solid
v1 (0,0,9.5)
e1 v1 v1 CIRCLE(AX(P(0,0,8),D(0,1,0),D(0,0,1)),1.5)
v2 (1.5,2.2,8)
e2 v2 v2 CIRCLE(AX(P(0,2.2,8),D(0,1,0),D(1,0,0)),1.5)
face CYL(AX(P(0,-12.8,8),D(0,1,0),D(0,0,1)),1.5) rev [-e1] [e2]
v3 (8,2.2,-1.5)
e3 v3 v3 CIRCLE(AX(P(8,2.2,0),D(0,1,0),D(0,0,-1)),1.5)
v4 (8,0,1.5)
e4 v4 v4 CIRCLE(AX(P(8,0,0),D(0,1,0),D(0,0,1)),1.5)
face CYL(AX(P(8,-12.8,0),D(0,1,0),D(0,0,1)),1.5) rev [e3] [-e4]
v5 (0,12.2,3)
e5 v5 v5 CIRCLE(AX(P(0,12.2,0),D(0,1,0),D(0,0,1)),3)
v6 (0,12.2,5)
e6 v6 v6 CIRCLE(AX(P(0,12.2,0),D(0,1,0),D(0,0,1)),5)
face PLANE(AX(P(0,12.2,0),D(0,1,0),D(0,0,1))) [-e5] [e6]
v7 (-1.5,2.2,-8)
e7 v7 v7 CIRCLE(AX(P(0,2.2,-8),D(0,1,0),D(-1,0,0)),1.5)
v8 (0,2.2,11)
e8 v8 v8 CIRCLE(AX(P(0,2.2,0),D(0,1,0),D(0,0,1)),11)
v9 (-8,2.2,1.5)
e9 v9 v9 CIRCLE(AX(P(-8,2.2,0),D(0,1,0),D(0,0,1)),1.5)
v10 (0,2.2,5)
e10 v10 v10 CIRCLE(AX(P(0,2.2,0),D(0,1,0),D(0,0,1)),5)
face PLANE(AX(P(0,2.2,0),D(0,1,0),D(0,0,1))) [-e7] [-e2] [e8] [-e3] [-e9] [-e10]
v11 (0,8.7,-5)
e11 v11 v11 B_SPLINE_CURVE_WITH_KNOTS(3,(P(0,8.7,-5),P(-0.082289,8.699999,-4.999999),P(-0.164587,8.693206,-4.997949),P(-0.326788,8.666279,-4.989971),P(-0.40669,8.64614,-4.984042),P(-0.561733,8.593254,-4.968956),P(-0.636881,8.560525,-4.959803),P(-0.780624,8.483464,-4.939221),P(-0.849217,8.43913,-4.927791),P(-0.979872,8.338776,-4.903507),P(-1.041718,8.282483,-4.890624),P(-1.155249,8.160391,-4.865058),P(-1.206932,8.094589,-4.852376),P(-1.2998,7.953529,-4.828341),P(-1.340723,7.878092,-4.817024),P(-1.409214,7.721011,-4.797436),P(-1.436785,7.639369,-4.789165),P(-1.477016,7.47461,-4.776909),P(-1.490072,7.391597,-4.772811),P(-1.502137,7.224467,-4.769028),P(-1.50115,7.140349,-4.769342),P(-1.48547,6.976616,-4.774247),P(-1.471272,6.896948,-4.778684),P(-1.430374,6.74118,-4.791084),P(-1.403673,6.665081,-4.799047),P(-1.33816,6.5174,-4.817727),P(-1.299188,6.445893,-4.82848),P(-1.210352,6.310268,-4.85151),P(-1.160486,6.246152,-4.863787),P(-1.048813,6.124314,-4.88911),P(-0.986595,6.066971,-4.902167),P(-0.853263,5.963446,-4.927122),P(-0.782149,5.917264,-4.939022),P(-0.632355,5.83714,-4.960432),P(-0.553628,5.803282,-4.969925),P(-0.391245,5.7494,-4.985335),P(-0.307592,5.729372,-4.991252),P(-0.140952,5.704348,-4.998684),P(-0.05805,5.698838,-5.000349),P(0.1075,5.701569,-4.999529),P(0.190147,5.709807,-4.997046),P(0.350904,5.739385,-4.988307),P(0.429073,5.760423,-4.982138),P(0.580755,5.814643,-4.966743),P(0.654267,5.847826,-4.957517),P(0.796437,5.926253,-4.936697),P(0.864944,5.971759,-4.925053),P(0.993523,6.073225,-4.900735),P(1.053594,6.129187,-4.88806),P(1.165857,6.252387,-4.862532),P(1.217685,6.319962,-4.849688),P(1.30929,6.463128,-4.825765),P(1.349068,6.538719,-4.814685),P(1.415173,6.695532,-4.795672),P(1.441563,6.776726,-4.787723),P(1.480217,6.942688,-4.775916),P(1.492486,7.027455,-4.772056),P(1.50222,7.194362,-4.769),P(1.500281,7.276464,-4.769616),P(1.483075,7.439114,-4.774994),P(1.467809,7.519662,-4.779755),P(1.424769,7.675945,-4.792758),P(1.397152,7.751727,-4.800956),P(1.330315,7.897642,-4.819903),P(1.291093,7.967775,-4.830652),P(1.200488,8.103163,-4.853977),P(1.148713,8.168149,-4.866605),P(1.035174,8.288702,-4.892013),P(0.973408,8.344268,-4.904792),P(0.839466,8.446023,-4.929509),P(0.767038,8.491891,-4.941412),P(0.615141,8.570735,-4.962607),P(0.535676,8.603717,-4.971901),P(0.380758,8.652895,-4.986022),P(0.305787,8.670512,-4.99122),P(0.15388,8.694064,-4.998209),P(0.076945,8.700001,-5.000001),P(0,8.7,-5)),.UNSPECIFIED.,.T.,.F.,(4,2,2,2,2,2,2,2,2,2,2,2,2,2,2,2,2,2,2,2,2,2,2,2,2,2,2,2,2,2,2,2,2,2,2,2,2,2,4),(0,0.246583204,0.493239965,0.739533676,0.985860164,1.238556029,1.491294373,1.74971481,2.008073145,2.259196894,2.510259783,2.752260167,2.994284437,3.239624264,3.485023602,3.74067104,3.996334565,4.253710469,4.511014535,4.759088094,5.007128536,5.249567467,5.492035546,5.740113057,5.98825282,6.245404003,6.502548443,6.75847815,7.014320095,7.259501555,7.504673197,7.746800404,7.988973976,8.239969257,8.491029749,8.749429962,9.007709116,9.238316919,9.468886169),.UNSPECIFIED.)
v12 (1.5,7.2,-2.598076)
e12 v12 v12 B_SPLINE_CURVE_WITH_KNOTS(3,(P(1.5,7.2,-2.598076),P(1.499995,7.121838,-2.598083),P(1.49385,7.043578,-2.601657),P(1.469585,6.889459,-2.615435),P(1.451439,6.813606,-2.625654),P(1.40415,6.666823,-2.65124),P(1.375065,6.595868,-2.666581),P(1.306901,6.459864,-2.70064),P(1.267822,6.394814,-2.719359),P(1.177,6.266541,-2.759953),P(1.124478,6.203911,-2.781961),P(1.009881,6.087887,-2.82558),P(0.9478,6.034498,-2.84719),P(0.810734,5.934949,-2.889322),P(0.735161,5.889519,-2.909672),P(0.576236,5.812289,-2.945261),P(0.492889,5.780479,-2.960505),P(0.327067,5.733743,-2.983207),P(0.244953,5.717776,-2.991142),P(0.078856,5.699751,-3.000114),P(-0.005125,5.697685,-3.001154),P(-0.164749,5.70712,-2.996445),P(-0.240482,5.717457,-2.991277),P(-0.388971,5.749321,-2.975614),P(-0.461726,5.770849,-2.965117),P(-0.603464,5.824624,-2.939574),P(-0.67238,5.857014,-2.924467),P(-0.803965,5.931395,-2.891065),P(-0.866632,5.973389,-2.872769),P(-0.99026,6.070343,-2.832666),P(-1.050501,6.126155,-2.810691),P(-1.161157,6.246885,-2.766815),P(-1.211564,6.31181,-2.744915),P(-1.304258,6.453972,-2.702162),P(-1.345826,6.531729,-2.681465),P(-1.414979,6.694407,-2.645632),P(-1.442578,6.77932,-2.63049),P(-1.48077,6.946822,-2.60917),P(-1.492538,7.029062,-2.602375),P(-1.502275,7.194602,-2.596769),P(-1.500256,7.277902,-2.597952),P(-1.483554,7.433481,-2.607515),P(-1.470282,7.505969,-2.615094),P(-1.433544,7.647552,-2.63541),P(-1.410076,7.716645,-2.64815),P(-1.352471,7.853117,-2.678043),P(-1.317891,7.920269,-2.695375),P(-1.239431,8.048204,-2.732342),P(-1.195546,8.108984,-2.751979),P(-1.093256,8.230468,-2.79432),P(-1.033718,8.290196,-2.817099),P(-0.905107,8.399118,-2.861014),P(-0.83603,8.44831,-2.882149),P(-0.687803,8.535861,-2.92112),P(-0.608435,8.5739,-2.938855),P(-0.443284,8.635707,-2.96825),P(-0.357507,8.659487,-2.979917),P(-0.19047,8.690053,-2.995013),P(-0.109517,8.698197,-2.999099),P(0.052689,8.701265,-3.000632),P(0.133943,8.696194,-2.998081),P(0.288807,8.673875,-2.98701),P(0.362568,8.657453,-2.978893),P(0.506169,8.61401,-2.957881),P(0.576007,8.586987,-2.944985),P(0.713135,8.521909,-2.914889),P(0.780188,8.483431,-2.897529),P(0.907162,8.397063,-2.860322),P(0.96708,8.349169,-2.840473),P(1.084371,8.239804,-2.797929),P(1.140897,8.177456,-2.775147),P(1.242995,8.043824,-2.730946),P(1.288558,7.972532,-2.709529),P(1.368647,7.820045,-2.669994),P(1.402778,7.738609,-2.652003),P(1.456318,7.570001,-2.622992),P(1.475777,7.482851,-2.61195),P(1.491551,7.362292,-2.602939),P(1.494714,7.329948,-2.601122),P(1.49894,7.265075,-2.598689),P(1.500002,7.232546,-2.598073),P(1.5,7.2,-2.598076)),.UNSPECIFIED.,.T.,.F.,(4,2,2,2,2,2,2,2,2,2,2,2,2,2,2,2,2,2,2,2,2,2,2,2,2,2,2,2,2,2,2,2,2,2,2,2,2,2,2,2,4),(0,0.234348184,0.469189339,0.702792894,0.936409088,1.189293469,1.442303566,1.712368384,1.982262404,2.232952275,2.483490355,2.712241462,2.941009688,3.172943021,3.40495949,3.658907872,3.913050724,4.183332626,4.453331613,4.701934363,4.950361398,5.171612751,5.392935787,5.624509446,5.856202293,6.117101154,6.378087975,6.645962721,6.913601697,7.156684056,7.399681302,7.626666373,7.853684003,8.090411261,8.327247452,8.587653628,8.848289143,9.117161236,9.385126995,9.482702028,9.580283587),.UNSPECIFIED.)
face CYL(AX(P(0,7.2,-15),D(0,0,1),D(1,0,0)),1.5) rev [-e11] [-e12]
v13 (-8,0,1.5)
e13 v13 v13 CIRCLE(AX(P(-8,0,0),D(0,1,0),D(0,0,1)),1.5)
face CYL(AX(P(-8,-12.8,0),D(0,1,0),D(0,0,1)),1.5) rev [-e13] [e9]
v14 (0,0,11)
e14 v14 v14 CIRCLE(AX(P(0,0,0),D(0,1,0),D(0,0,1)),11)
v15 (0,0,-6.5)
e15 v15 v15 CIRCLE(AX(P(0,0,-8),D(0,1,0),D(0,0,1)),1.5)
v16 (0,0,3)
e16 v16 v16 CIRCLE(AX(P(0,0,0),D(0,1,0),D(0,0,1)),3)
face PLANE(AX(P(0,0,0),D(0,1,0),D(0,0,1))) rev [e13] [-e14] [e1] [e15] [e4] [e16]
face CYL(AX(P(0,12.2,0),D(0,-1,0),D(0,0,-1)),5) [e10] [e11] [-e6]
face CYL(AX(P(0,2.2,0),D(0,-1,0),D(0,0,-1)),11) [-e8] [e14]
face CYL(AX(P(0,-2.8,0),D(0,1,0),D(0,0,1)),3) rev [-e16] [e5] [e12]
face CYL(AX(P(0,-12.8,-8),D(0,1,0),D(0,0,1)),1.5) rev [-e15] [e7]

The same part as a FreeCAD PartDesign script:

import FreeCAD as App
import Part
import Sketcher
Q = App.Units.Quantity

doc = App.newDocument("Part")
body = doc.addObject("PartDesign::Body", "Body")

# Sketch on XZ plane
sketch1 = doc.addObject("Sketcher::SketchObject", "Sketch")
body.addObject(sketch1)
sketch1.AttachmentSupport = (doc.XZ_Plane, [""])
sketch1.MapMode = "FlatFace"
sketch1.addGeometry(Part.Circle(App.Vector(0, 0, 0), App.Vector(0, 0, 1), 11), False)
sketch1.addConstraint([
    Sketcher.Constraint("Coincident", 0, 3, -1, 1),
    Sketcher.Constraint("Diameter", 0, Q("22 mm")),
])
pad1 = doc.addObject("PartDesign::Pad", "Pad")
body.addObject(pad1)
pad1.Profile = sketch1
pad1.Length = 2.2
pad1.Reversed = True

# Sketch on XZ plane
sketch2 = doc.addObject("Sketcher::SketchObject", "Sketch001")
body.addObject(sketch2)
sketch2.AttachmentSupport = (doc.XZ_Plane, [""])
sketch2.MapMode = "FlatFace"
sketch2.AttachmentOffset = App.Placement(App.Vector(0, 0, -2.2), App.Rotation())
sketch2.addGeometry(Part.Circle(App.Vector(0, 0, 0), App.Vector(0, 0, 1), 5), False)
sketch2.addConstraint([
    Sketcher.Constraint("Coincident", 0, 3, -1, 1),
    Sketcher.Constraint("Diameter", 0, Q("10 mm")),
])
pad2 = doc.addObject("PartDesign::Pad", "Pad001")
body.addObject(pad2)
pad2.Profile = sketch2
pad2.Length = 10
pad2.Reversed = True

# Sketch on XZ plane
sketch3 = doc.addObject("Sketcher::SketchObject", "Sketch002")
body.addObject(sketch3)
sketch3.AttachmentSupport = (doc.XZ_Plane, [""])
sketch3.MapMode = "FlatFace"
sketch3.AttachmentOffset = App.Placement(App.Vector(0, 0, -12.2), App.Rotation())
sketch3.addGeometry(Part.Circle(App.Vector(0, 0, 0), App.Vector(0, 0, 1), 3), False)
sketch3.addConstraint([
    Sketcher.Constraint("Coincident", 0, 3, -1, 1),
    Sketcher.Constraint("Diameter", 0, Q("6 mm")),
])
pocket1 = doc.addObject("PartDesign::Pocket", "Pocket")
body.addObject(pocket1)
pocket1.Profile = sketch3
pocket1.Length = 15
pocket1.Reversed = True

# Sketch on XY plane
sketch4 = doc.addObject("Sketcher::SketchObject", "Sketch003")
body.addObject(sketch4)
sketch4.AttachmentSupport = (doc.XY_Plane, [""])
sketch4.MapMode = "FlatFace"
sketch4.addGeometry(Part.Circle(App.Vector(0, 7.2, 0), App.Vector(0, 0, 1), 1.5), False)
sketch4.addConstraint([
    Sketcher.Constraint("PointOnObject", 0, 3, -2),
    Sketcher.Constraint("Diameter", 0, Q("3 mm")),
    Sketcher.Constraint("DistanceY", -1, 1, 0, 3, Q("7.2 mm")),
])
pocket2 = doc.addObject("PartDesign::Pocket", "Pocket001")
body.addObject(pocket2)
pocket2.Profile = sketch4
pocket2.Length = 15

# Sketch on XZ plane
sketch5 = doc.addObject("Sketcher::SketchObject", "Sketch004")
body.addObject(sketch5)
sketch5.AttachmentSupport = (doc.XZ_Plane, [""])
sketch5.MapMode = "FlatFace"
sketch5.AttachmentOffset = App.Placement(App.Vector(0, 0, -2.2), App.Rotation())
sketch5.addGeometry(Part.Circle(App.Vector(-8, 0, 0), App.Vector(0, 0, 1), 1.5), False)
sketch5.addConstraint([
    Sketcher.Constraint("PointOnObject", 0, 3, -1),
    Sketcher.Constraint("Diameter", 0, Q("3 mm")),
    Sketcher.Constraint("DistanceX", 0, 3, -1, 1, Q("8 mm")),
])
pocket3 = doc.addObject("PartDesign::Pocket", "Pocket002")
body.addObject(pocket3)
pocket3.Profile = sketch5
pocket3.Length = 15
pocket3.Reversed = True
doc.recompute()

polarpattern = doc.addObject("PartDesign::PolarPattern", "PolarPattern")
body.addObject(polarpattern)
polarpattern.Originals = [pocket3]
polarpattern.Axis = (doc.Y_Axis, [""])
polarpattern.Angle = 360
polarpattern.Occurrences = 4
body.Tip = polarpattern

doc.recompute()
